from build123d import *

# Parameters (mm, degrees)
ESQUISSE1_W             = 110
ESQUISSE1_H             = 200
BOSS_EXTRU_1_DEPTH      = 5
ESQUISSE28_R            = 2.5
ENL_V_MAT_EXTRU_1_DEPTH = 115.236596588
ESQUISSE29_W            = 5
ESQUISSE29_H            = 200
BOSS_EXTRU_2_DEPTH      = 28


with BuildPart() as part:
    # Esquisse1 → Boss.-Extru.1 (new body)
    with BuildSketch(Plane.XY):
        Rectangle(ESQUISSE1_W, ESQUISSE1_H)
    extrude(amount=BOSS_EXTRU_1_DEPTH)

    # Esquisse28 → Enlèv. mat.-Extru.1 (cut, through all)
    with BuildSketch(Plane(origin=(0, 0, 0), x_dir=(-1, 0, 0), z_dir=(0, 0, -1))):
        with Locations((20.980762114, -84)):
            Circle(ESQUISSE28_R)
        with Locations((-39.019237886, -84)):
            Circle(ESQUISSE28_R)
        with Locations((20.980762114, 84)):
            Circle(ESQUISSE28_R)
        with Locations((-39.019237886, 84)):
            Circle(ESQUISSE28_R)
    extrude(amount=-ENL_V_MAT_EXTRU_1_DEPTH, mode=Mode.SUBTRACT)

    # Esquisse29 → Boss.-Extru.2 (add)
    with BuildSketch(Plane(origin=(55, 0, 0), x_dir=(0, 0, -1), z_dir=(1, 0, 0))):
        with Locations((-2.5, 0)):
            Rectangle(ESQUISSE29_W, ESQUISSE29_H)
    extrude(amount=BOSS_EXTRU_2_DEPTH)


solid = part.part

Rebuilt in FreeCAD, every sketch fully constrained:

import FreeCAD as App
import Part
import Sketcher
from FreeCAD import Vector

doc = App.newDocument("Part")
body = doc.addObject("PartDesign::Body", "Body")

sketch1 = body.newObject("Sketcher::SketchObject", "Sketch")
sketch1.AttachmentSupport = (doc.getObject("XY_Plane"), [""])
sketch1.MapMode = "FlatFace"
sketch1.addGeometry([
    Part.LineSegment(Vector(-55, 100, 0), Vector(-55, -100, 0)),
    Part.LineSegment(Vector(-55, -100, 0), Vector(55, -100, 0)),
    Part.LineSegment(Vector(55, -100, 0), Vector(55, 100, 0)),
    Part.LineSegment(Vector(55, 100, 0), Vector(-55, 100, 0)),
], False)
sketch1.addConstraint([
    Sketcher.Constraint("Coincident", 0, 2, 1, 1),
    Sketcher.Constraint("Coincident", 1, 2, 2, 1),
    Sketcher.Constraint("Coincident", 2, 2, 3, 1),
    Sketcher.Constraint("Coincident", 3, 2, 0, 1),
    Sketcher.Constraint("Vertical", 0),
    Sketcher.Constraint("Horizontal", 1),
    Sketcher.Constraint("Vertical", 2),
    Sketcher.Constraint("Horizontal", 3),
    Sketcher.Constraint("Symmetric", 0, 2, 2, 2, -1, 1),
    Sketcher.Constraint("DistanceX", 1, 1, 1, 2, 110.0),
    Sketcher.Constraint("DistanceY", 0, 2, 0, 1, 200.0),
])
pad1 = body.newObject("PartDesign::Pad", "Pad")
pad1.Profile = sketch1
pad1.Length = 5

sketch2 = body.newObject("Sketcher::SketchObject", "Sketch001")
sketch2.AttachmentSupport = (doc.getObject("XY_Plane"), [""])
sketch2.MapMode = "FlatFace"
sketch2.addGeometry([
    Part.Circle(Vector(-21, -84, 0), Vector(0, 0, 1), 2.5),
    Part.Circle(Vector(39, -84, 0), Vector(0, 0, 1), 2.5),
    Part.Circle(Vector(-21, 84, 0), Vector(0, 0, 1), 2.5),
    Part.Circle(Vector(39, 84, 0), Vector(0, 0, 1), 2.5),
], False)
sketch2.addConstraint([
    Sketcher.Constraint("Equal", 0, 1),
    Sketcher.Constraint("Equal", 1, 2),
    Sketcher.Constraint("Equal", 2, 3),
    Sketcher.Constraint("Symmetric", 0, 3, 2, 3, -1),
    Sketcher.Constraint("Symmetric", 1, 3, 3, 3, -1),
    Sketcher.Constraint("Horizontal", 0, 3, 1, 3),
    Sketcher.Constraint("Diameter", 0, 5.0),
    Sketcher.Constraint("DistanceY", 0, 3, -1, 1, 84.0),
    Sketcher.Constraint("DistanceX", 0, 3, 1, 3, 60.0),
    Sketcher.Constraint("DistanceX", 0, 3, -1, 1, 20.980762),
])
pocket1 = body.newObject("PartDesign::Pocket", "Pocket")
pocket1.Profile = sketch2
pocket1.Type = "ThroughAll"
pocket1.Reversed = True

sketch3 = body.newObject("Sketcher::SketchObject", "Sketch002")
sketch3.AttachmentSupport = (doc.getObject("YZ_Plane"), [""])
sketch3.MapMode = "FlatFace"
sketch3.AttachmentOffset = App.Placement(Vector(0, 0, 55), App.Rotation())
sketch3.addGeometry([
    Part.LineSegment(Vector(100, 5, 0), Vector(-100, 5, 0)),
    Part.LineSegment(Vector(-100, 5, 0), Vector(-100, 0, 0)),
    Part.LineSegment(Vector(-100, 0, 0), Vector(100, 0, 0)),
    Part.LineSegment(Vector(100, 0, 0), Vector(100, 5, 0)),
], False)
sketch3.addConstraint([
    Sketcher.Constraint("Coincident", 0, 2, 1, 1),
    Sketcher.Constraint("Coincident", 1, 2, 2, 1),
    Sketcher.Constraint("Coincident", 2, 2, 3, 1),
    Sketcher.Constraint("Coincident", 3, 2, 0, 1),
    Sketcher.Constraint("Horizontal", 0),
    Sketcher.Constraint("Vertical", 1),
    Sketcher.Constraint("Horizontal", 2),
    Sketcher.Constraint("Vertical", 3),
    Sketcher.Constraint("Symmetric", 1, 2, 2, 2, -1, 1),
    Sketcher.Constraint("DistanceX", 0, 2, 0, 1, 200.0),
    Sketcher.Constraint("DistanceY", 1, 2, 1, 1, 5.0),
])
pad2 = body.newObject("PartDesign::Pad", "Pad001")
pad2.Profile = sketch3
pad2.Length = 28

doc.recompute()
